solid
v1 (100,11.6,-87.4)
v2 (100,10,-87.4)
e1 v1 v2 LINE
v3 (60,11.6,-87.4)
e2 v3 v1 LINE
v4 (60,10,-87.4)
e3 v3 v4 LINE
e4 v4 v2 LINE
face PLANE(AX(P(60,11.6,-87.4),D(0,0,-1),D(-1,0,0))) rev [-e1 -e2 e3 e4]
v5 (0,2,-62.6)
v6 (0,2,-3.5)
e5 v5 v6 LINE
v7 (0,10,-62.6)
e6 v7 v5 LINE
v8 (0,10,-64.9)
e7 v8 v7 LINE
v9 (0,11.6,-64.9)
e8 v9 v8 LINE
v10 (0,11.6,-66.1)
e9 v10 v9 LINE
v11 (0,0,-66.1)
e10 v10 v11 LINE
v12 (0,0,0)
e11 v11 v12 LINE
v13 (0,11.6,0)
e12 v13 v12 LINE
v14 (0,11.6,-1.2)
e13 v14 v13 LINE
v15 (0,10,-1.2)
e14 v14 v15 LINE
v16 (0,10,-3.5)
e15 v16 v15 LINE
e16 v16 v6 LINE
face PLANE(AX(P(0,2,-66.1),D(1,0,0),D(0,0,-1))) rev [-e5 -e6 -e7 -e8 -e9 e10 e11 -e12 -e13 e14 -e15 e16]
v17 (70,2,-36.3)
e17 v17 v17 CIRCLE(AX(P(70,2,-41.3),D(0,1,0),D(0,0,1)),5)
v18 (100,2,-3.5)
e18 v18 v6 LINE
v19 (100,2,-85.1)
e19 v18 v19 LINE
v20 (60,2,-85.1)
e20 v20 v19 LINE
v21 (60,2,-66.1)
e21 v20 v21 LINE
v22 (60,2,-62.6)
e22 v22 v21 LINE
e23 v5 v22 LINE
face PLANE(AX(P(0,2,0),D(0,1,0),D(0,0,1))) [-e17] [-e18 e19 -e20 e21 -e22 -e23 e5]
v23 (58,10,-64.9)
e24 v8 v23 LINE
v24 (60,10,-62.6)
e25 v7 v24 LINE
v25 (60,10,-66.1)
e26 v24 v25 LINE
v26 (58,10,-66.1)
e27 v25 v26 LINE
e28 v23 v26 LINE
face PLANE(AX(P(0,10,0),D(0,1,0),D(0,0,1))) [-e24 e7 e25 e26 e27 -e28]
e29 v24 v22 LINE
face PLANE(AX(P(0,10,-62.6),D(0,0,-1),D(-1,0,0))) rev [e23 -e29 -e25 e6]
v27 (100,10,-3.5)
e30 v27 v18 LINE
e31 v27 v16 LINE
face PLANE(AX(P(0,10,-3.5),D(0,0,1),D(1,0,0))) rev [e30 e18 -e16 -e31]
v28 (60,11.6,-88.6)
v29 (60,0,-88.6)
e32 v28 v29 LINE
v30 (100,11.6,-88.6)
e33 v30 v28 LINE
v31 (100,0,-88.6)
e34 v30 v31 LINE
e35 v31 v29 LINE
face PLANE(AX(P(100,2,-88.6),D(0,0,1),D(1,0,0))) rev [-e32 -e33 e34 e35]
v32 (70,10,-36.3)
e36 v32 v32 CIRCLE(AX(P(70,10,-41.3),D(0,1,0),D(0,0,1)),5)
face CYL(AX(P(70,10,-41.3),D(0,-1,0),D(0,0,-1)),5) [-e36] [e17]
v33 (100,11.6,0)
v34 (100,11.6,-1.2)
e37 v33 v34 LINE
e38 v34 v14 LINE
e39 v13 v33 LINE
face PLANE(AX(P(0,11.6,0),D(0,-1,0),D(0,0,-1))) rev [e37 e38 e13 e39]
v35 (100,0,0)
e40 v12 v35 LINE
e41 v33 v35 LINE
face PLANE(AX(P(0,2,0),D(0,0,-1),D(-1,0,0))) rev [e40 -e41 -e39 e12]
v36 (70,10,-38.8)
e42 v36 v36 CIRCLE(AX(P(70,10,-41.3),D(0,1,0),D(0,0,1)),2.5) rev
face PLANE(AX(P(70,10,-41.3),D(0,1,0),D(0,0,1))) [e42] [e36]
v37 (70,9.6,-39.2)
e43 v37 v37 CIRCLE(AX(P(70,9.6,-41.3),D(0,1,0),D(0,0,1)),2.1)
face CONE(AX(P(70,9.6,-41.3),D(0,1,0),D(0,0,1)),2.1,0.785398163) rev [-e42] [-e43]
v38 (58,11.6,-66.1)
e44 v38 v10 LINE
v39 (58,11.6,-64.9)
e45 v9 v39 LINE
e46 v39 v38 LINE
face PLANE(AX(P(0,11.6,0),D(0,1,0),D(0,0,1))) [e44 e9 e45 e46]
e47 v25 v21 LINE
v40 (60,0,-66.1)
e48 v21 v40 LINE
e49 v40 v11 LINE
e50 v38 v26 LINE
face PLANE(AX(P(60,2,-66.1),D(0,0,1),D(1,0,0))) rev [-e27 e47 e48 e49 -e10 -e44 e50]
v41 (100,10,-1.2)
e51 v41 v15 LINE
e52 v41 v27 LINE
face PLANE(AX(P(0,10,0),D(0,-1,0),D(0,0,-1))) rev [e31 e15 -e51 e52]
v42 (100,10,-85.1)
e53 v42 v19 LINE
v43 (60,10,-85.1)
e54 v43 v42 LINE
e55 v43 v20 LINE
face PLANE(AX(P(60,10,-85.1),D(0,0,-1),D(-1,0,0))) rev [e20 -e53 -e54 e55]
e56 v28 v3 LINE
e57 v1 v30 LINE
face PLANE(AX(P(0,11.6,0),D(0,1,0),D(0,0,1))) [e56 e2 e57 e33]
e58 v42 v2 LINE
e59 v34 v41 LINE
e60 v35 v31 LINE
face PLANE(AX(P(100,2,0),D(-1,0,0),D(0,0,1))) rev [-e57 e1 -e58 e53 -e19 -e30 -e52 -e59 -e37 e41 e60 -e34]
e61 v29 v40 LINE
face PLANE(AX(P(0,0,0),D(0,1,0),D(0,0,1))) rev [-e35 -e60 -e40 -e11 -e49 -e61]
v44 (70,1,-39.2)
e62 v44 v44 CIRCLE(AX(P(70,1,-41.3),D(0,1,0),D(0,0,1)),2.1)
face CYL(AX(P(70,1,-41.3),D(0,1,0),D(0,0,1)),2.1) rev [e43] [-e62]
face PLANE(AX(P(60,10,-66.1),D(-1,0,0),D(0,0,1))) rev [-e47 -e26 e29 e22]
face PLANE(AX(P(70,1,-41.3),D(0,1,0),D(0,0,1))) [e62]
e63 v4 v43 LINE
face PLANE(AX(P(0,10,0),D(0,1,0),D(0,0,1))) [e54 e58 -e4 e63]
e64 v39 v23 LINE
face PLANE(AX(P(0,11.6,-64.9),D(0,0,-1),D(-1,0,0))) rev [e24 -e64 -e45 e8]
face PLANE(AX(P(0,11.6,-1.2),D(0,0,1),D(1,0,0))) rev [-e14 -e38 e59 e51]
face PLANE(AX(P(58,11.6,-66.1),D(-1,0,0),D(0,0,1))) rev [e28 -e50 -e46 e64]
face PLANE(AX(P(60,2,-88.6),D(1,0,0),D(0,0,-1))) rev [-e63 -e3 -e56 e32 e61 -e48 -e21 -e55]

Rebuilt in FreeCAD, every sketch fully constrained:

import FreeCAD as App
import Part
import Sketcher

V = App.Vector


def edges_at(feature, points):
    """Names of the edges that pass closest to the given points."""
    edges = feature.Shape.Edges
    near = lambda p: min(range(len(edges)), key=lambda i: edges[i].distToShape(Part.Vertex(*p))[0])
    return sorted({f"Edge{near(p) + 1}" for p in points})


def add_polygon(sketch, points):
    """Adds a closed chain of lines whose ends are joined by coincident constraints."""
    first, n = sketch.GeometryCount, len(points)
    for a, b in zip(points, points[1:] + points[:1]):
        sketch.addGeometry(Part.LineSegment(App.Vector(*a, 0), App.Vector(*b, 0)), False)
    for i in range(n):
        sketch.addConstraint(Sketcher.Constraint("Coincident", first + i, 2, first + (i + 1) % n, 1))

doc = App.newDocument("Part")
params = doc.addObject("Spreadsheet::Sheet", "Params")
for row, (alias, value) in enumerate([
    ("sketch1_width", "100 mm"),
    ("sketch1_width2", "40 mm"),
    ("sketch1_height", "66.1 mm"),
    ("sketch1_height2", "88.6 mm"),
    ("pad1_length", "2 mm"),
    ("sketch2_diameter", "10 mm"),
    ("sketch2_width", "60 mm"),
    ("sketch2_width2", "40 mm"),
    ("sketch2_height", "3.5 mm"),
    ("pad2_length", "8 mm"),
    ("sketch3_diameter", "4.2 mm"),
    ("pocket1_length", "9 mm"),
    ("chamfer_size", "0.4 mm"),
    ("sketch4_width", "58 mm"),
    ("sketch4_width2", "40 mm"),
    ("sketch4_width3", "100 mm"),
    ("sketch4_height", "1.2 mm"),
    ("pad3_length", "1.6 mm"),
], start=1):
    params.set(f"A{row}", alias)
    params.set(f"B{row}", "=" + value)
    params.setAlias(f"B{row}", alias)

body = doc.addObject("PartDesign::Body", "Body")

sketch1 = doc.addObject("Sketcher::SketchObject", "Sketch")
body.addObject(sketch1)
sketch1.AttachmentSupport = (doc.XZ_Plane, [""])
sketch1.MapMode = "FlatFace"
add_polygon(sketch1, [(0, -66), (0, 0), (100, 0), (100, -89), (60, -89), (60, -66)])
sketch1.addConstraint(Sketcher.Constraint("Vertical", 0))
sketch1.addConstraint(Sketcher.Constraint("Horizontal", 1))
sketch1.addConstraint(Sketcher.Constraint("Vertical", 2))
sketch1.addConstraint(Sketcher.Constraint("Horizontal", 3))
sketch1.addConstraint(Sketcher.Constraint("Vertical", 4))
sketch1.addConstraint(Sketcher.Constraint("Horizontal", 5))
sketch1.addConstraint(Sketcher.Constraint("Coincident", 0, 2, -1, 1))
sketch1.addConstraint(Sketcher.Constraint("DistanceX", 1, 1, 1, 2, 100.0))
sketch1.addConstraint(Sketcher.Constraint("DistanceX", 3, 2, 3, 1, 40.0))
sketch1.addConstraint(Sketcher.Constraint("DistanceY", 0, 1, 0, 2, 66.1))
sketch1.addConstraint(Sketcher.Constraint("DistanceY", 2, 2, 2, 1, 88.6))
sketch1.setExpression("Constraints[13]", "Params.sketch1_width")
sketch1.setExpression("Constraints[14]", "Params.sketch1_width2")
sketch1.setExpression("Constraints[15]", "Params.sketch1_height")
sketch1.setExpression("Constraints[16]", "Params.sketch1_height2")
pad1 = doc.addObject("PartDesign::Pad", "Pad")
body.addObject(pad1)
pad1.Profile = sketch1
pad1.setExpression("Length", "Params.pad1_length")
pad1.Reversed = True

sketch2 = doc.addObject("Sketcher::SketchObject", "Sketch001")
body.addObject(sketch2)
sketch2.AttachmentSupport = (doc.XZ_Plane, [""])
sketch2.MapMode = "FlatFace"
sketch2.AttachmentOffset = App.Placement(V(0, 0, -2), App.Rotation())
sketch2.addGeometry(Part.Circle(V(70, -41.3, 0), V(0, 0, 1), 5), False)
add_polygon(sketch2, [(0, -66.1), (0, -62.6), (60, -62.6), (60, -66.1)])
add_polygon(sketch2, [(60, -88.6), (60, -85.1), (100, -85.1), (100, -88.6)])
add_polygon(sketch2, [(0, -3.5), (0, 0), (100, 0), (100, -3.5)])
sketch2.addConstraint(Sketcher.Constraint("Vertical", 1))
sketch2.addConstraint(Sketcher.Constraint("Horizontal", 2))
sketch2.addConstraint(Sketcher.Constraint("Vertical", 3))
sketch2.addConstraint(Sketcher.Constraint("Horizontal", 4))
sketch2.addConstraint(Sketcher.Constraint("Vertical", 5))
sketch2.addConstraint(Sketcher.Constraint("Horizontal", 6))
sketch2.addConstraint(Sketcher.Constraint("Vertical", 7))
sketch2.addConstraint(Sketcher.Constraint("Horizontal", 8))
sketch2.addConstraint(Sketcher.Constraint("Vertical", 9))
sketch2.addConstraint(Sketcher.Constraint("Horizontal", 10))
sketch2.addConstraint(Sketcher.Constraint("Vertical", 11))
sketch2.addConstraint(Sketcher.Constraint("Horizontal", 12))
sketch2.addConstraint(Sketcher.Constraint("Coincident", 9, 2, -1, 1))
sketch2.addConstraint(Sketcher.Constraint("PointOnObject", 1, 2, -2))
sketch2.addConstraint(Sketcher.Constraint("Vertical", 3, 2, 5, 2))
sketch2.addConstraint(Sketcher.Constraint("Vertical", 7, 2, 10, 2))
sketch2.addConstraint(Sketcher.Constraint("Equal", 3, 5))
sketch2.addConstraint(Sketcher.Constraint("Equal", 7, 9))
sketch2.addConstraint(Sketcher.Constraint("Diameter", 0, 10.0))
sketch2.addConstraint(Sketcher.Constraint("DistanceX", 2, 1, 2, 2, 60.0))
sketch2.addConstraint(Sketcher.Constraint("DistanceX", 6, 1, 6, 2, 40.0))
sketch2.addConstraint(Sketcher.Constraint("DistanceY", 1, 1, 1, 2, 3.5))
sketch2.addConstraint(Sketcher.Constraint("DistanceX", -1, 1, 0, 3, 70.0))
sketch2.addConstraint(Sketcher.Constraint("DistanceY", 5, 2, 3, 2, 19.0))
sketch2.addConstraint(Sketcher.Constraint("DistanceY", 0, 3, -1, 1, 41.3))
sketch2.addConstraint(Sketcher.Constraint("DistanceY", 1, 2, -1, 1, 62.6))
sketch2.setExpression("Constraints[30]", "Params.sketch2_diameter")
sketch2.setExpression("Constraints[31]", "Params.sketch2_width")
sketch2.setExpression("Constraints[32]", "Params.sketch2_width2")
sketch2.setExpression("Constraints[33]", "Params.sketch2_height")
pad2 = doc.addObject("PartDesign::Pad", "Pad001")
body.addObject(pad2)
pad2.Profile = sketch2
pad2.setExpression("Length", "Params.pad2_length")
pad2.Reversed = True

sketch3 = doc.addObject("Sketcher::SketchObject", "Sketch002")
body.addObject(sketch3)
sketch3.AttachmentSupport = (doc.XZ_Plane, [""])
sketch3.MapMode = "FlatFace"
sketch3.AttachmentOffset = App.Placement(V(0, 0, -10), App.Rotation())
sketch3.addGeometry(Part.Circle(V(70, -41.3, 0), V(0, 0, 1), 2.1), False)
sketch3.addConstraint(Sketcher.Constraint("Diameter", 0, 4.2))
sketch3.addConstraint(Sketcher.Constraint("DistanceX", -1, 1, 0, 3, 70.0))
sketch3.addConstraint(Sketcher.Constraint("DistanceY", 0, 3, -1, 1, 41.3))
sketch3.setExpression("Constraints[0]", "Params.sketch3_diameter")
pocket1 = doc.addObject("PartDesign::Pocket", "Pocket")
body.addObject(pocket1)
pocket1.Profile = sketch3
pocket1.setExpression("Length", "Params.pocket1_length")
pocket1.Reversed = True
doc.recompute()

chamfer = doc.addObject("PartDesign::Chamfer", "Chamfer")
body.addObject(chamfer)
chamfer.Base = (pocket1, edges_at(pocket1, [(70, 10, -43.4)]))
chamfer.setExpression("Size", "Params.chamfer_size")

sketch4 = doc.addObject("Sketcher::SketchObject", "Sketch003")
body.addObject(sketch4)
sketch4.AttachmentSupport = (doc.XZ_Plane, [""])
sketch4.MapMode = "FlatFace"
sketch4.AttachmentOffset = App.Placement(V(0, 0, -10), App.Rotation())
add_polygon(sketch4, [(0, -66.1), (0, -64.9), (58, -64.9), (58, -66.1)])
add_polygon(sketch4, [(60, -88.6), (60, -87.4), (100, -87.4), (100, -88.6)])
add_polygon(sketch4, [(0, -1.2), (0, 0), (100, 0), (100, -1.2)])
sketch4.addConstraint(Sketcher.Constraint("Vertical", 0))
sketch4.addConstraint(Sketcher.Constraint("Horizontal", 1))
sketch4.addConstraint(Sketcher.Constraint("Vertical", 2))
sketch4.addConstraint(Sketcher.Constraint("Horizontal", 3))
sketch4.addConstraint(Sketcher.Constraint("Vertical", 4))
sketch4.addConstraint(Sketcher.Constraint("Horizontal", 5))
sketch4.addConstraint(Sketcher.Constraint("Vertical", 6))
sketch4.addConstraint(Sketcher.Constraint("Horizontal", 7))
sketch4.addConstraint(Sketcher.Constraint("Vertical", 8))
sketch4.addConstraint(Sketcher.Constraint("Horizontal", 9))
sketch4.addConstraint(Sketcher.Constraint("Vertical", 10))
sketch4.addConstraint(Sketcher.Constraint("Horizontal", 11))
sketch4.addConstraint(Sketcher.Constraint("Coincident", 8, 2, -1, 1))
sketch4.addConstraint(Sketcher.Constraint("PointOnObject", 0, 2, -2))
sketch4.addConstraint(Sketcher.Constraint("Vertical", 6, 2, 9, 2))
sketch4.addConstraint(Sketcher.Constraint("Equal", 2, 4))
sketch4.addConstraint(Sketcher.Constraint("Equal", 6, 8))
sketch4.addConstraint(Sketcher.Constraint("DistanceX", 1, 1, 1, 2, 58.0))
sketch4.addConstraint(Sketcher.Constraint("DistanceX", 5, 1, 5, 2, 40.0))
sketch4.addConstraint(Sketcher.Constraint("DistanceX", 9, 1, 9, 2, 100.0))
sketch4.addConstraint(Sketcher.Constraint("DistanceY", 0, 1, 0, 2, 1.2))
sketch4.addConstraint(Sketcher.Constraint("DistanceY", 0, 2, -1, 1, 64.9))
sketch4.addConstraint(Sketcher.Constraint("DistanceY", 4, 2, -1, 1, 87.4))
sketch4.setExpression("Constraints[29]", "Params.sketch4_width")
sketch4.setExpression("Constraints[30]", "Params.sketch4_width2")
sketch4.setExpression("Constraints[31]", "Params.sketch4_width3")
sketch4.setExpression("Constraints[32]", "Params.sketch4_height")
pad3 = doc.addObject("PartDesign::Pad", "Pad002")
body.addObject(pad3)
pad3.Profile = sketch4
pad3.setExpression("Length", "Params.pad3_length")
pad3.Reversed = True

doc.recompute()
